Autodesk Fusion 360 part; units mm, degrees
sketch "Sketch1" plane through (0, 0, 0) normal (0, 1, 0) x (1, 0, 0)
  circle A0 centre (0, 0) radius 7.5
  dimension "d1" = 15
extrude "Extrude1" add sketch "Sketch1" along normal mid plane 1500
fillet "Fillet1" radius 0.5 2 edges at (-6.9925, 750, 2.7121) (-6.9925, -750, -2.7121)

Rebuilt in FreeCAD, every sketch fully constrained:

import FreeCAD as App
import Part
import Sketcher

V = App.Vector


def edges_at(feature, points):
    """Names of the edges that pass closest to the given points."""
    edges = feature.Shape.Edges
    near = lambda p: min(range(len(edges)), key=lambda i: edges[i].distToShape(Part.Vertex(*p))[0])
    return sorted({f"Edge{near(p) + 1}" for p in points})

doc = App.newDocument("Part")
body = doc.addObject("PartDesign::Body", "Body")

# Sketch on XZ plane
sketch1 = body.newObject("Sketcher::SketchObject", "Sketch")
sketch1.AttachmentSupport = (doc.getObject("XZ_Plane"), [""])
sketch1.MapMode = "FlatFace"
sketch1.addGeometry(Part.Circle(V(0, 0, 0), V(0, 0, 1), 8), False)
sketch1.addConstraint([
    Sketcher.Constraint("Coincident", 0, 3, -1, 1),
    Sketcher.Constraint("Diameter", 0, 15.0),
])
pad1 = body.newObject("PartDesign::Pad", "Pad")
pad1.Profile = sketch1
pad1.Length = 1500
pad1.Midplane = True
doc.recompute()

fillet = body.newObject("PartDesign::Fillet", "Fillet")
fillet.Base = (pad1, edges_at(pad1, [(-6.992, 750, 2.712), (-6.992, -750, -2.712)]))
fillet.Radius = 0.5

doc.recompute()
